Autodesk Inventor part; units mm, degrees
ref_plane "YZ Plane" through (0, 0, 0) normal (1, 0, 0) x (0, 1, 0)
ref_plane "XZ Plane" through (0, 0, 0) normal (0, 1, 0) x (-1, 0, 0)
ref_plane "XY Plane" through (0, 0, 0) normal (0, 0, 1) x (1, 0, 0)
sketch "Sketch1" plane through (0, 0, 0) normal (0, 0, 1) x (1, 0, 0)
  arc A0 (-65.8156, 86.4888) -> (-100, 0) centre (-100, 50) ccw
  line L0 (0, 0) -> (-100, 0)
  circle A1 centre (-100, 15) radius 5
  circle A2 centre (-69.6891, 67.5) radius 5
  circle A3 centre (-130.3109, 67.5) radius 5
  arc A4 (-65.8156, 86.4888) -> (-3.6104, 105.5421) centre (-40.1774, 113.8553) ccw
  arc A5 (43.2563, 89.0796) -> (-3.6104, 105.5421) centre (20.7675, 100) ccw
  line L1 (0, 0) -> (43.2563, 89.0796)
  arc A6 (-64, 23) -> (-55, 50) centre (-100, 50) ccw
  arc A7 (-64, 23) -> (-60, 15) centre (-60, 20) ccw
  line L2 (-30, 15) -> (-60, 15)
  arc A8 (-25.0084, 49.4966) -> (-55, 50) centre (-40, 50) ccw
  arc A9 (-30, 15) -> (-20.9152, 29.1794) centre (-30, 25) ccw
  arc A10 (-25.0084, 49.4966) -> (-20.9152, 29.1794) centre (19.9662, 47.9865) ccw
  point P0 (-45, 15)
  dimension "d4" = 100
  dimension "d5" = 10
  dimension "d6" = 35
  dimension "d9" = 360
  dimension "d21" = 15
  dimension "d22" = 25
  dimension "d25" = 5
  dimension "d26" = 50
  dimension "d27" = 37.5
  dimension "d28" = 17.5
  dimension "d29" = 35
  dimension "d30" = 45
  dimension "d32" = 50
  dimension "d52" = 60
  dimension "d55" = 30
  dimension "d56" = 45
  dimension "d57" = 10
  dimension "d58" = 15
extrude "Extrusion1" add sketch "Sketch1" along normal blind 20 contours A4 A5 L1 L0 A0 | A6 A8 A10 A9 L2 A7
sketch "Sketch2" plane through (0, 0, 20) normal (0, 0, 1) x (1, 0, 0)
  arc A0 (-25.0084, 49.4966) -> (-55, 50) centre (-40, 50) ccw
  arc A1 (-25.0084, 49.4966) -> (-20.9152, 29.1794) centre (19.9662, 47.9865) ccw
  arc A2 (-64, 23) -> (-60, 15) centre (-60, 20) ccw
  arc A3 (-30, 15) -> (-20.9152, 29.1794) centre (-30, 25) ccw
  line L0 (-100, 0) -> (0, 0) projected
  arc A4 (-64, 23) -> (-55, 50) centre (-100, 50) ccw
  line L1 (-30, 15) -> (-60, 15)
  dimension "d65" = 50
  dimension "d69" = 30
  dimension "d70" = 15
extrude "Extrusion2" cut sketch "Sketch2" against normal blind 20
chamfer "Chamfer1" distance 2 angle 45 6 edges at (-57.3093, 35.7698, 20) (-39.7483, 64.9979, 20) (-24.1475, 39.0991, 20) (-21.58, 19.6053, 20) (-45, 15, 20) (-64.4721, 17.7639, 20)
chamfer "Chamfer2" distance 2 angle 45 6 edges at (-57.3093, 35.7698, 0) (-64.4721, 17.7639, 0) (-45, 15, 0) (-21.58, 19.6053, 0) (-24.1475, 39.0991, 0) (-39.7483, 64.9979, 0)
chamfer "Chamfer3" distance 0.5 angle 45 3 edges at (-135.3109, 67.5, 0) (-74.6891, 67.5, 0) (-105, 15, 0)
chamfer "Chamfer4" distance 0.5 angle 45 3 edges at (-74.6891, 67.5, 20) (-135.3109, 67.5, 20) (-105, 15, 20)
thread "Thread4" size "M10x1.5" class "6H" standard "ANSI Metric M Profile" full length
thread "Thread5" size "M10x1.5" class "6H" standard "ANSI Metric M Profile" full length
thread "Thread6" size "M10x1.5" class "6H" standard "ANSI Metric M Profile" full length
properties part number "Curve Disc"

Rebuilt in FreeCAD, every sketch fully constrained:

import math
import FreeCAD as App
import Part
import Sketcher
from FreeCAD import Vector
Q = App.Units.Quantity


def edges_at(feature, points):
    """Names of the edges that pass closest to the given points."""
    edges = feature.Shape.Edges
    near = lambda p: min(range(len(edges)), key=lambda i: edges[i].distToShape(Part.Vertex(*p))[0])
    return sorted({f"Edge{near(p) + 1}" for p in points})

doc = App.newDocument("Part")
params = doc.addObject("Spreadsheet::Sheet", "Params")
for row, (alias, value) in enumerate([
    ("sketch1_diameter", "10 mm"),
    ("sketch1_radius", "50 mm"),
    ("sketch1_radius2", "25 mm"),
    ("sketch1_radius3", "37.5 mm"),
    ("sketch1_width", "100 mm"),
    ("pad1_length", "20 mm"),
    ("sketch2_radius", "15 mm"),
    ("sketch2_width", "30 mm"),
    ("sketch2_radius2", "45 mm"),
    ("sketch2_radius3", "5 mm"),
    ("sketch2_radius4", "10 mm"),
    ("pocket1_length", "20 mm"),
    ("chamfer_size", "2 mm"),
    ("chamfer2_size", "2 mm"),
    ("chamfer3_size", "0.5 mm"),
    ("chamfer4_size", "0.5 mm"),
], start=1):
    params.set(f"A{row}", alias)
    params.set(f"B{row}", "=" + value)
    params.setAlias(f"B{row}", alias)

body = doc.addObject("PartDesign::Body", "Body")

sketch1 = body.newObject("Sketcher::SketchObject", "Sketch")
sketch1.AttachmentSupport = (doc.getObject("XY_Plane"), [""])
sketch1.MapMode = "FlatFace"
sketch1.addGeometry([
    Part.ArcOfCircle(Part.Circle(Vector(-40, 114, 0), Vector(0, 0, 1), 37), math.radians(-133), math.radians(-13)),
    Part.ArcOfCircle(Part.Circle(Vector(-100, 50, 0), Vector(0, 0, 1), 50), math.radians(47), math.radians(270)),
    Part.LineSegment(Vector(-100, 0, 0), Vector(0, 0, 0)),
    Part.LineSegment(Vector(0, 0, 0), Vector(43, 89, 0)),
    Part.ArcOfCircle(Part.Circle(Vector(21, 100, 0), Vector(0, 0, 1), 25), math.radians(-26), math.radians(167)),
    Part.Circle(Vector(-100, 15, 0), Vector(0, 0, 1), 5),
    Part.Circle(Vector(-130, 68, 0), Vector(0, 0, 1), 5),
    Part.Circle(Vector(-70, 68, 0), Vector(0, 0, 1), 5),
], False)
sketch1.addConstraint([
    Sketcher.Constraint("Tangent", 0, 1, 1, 1),
    Sketcher.Constraint("Tangent", 1, 2, 2, 1),
    Sketcher.Constraint("Coincident", 2, 2, 3, 1),
    Sketcher.Constraint("Tangent", 3, 2, 4, 1),
    Sketcher.Constraint("Tangent", 4, 2, 0, 2),
    Sketcher.Constraint("Horizontal", 2),
    Sketcher.Constraint("Coincident", 2, 2, -1, 1),
    Sketcher.Constraint("Equal", 5, 6),
    Sketcher.Constraint("Equal", 6, 7),
    Sketcher.Constraint("Horizontal", 6, 3, 7, 3),
    Sketcher.Constraint("Vertical", 1, 3, 5, 3),
    Sketcher.Constraint("Diameter", 5, 10.0),
    Sketcher.Constraint("Radius", 1, 50.0),
    Sketcher.Constraint("Radius", 4, 25.0),
    Sketcher.Constraint("Radius", 0, 37.5),
    Sketcher.Constraint("DistanceX", 2, 1, 2, 2, 100.0),
    Sketcher.Constraint("DistanceY", -1, 1, 4, 3, 100.0),
    Sketcher.Constraint("DistanceY", -1, 1, 5, 3, 15.0),
    Sketcher.Constraint("DistanceY", 1, 3, 6, 3, 17.5),
    Sketcher.Constraint("Angle", 3, Q("64.0992 deg")),
    Sketcher.Constraint("DistanceX", 6, 3, -1, 1, 130.311),
    Sketcher.Constraint("DistanceX", 7, 3, -1, 1, 69.689),
])
sketch1.setExpression("Constraints[11]", "Params.sketch1_diameter")
sketch1.setExpression("Constraints[12]", "Params.sketch1_radius")
sketch1.setExpression("Constraints[13]", "Params.sketch1_radius2")
sketch1.setExpression("Constraints[14]", "Params.sketch1_radius3")
sketch1.setExpression("Constraints[15]", "Params.sketch1_width")
pad1 = body.newObject("PartDesign::Pad", "Pad")
pad1.Profile = sketch1
pad1.setExpression("Length", "Params.pad1_length")

sketch2 = body.newObject("Sketcher::SketchObject", "Sketch001")
sketch2.AttachmentSupport = (doc.getObject("XY_Plane"), [""])
sketch2.MapMode = "FlatFace"
sketch2.AttachmentOffset = App.Placement(Vector(0, 0, 20), App.Rotation())
sketch2.addGeometry([
    Part.ArcOfCircle(Part.Circle(Vector(20, 48, 0), Vector(0, 0, 1), 45), math.radians(178), math.radians(205)),
    Part.ArcOfCircle(Part.Circle(Vector(-40, 50, 0), Vector(0, 0, 1), 15), math.radians(-2), math.radians(180)),
    Part.ArcOfCircle(Part.Circle(Vector(-100, 50, 0), Vector(0, 0, 1), 45), math.radians(-37), math.radians(0)),
    Part.ArcOfCircle(Part.Circle(Vector(-60, 20, 0), Vector(0, 0, 1), 5), math.radians(143), math.radians(270)),
    Part.LineSegment(Vector(-60, 15, 0), Vector(-30, 15, 0)),
    Part.ArcOfCircle(Part.Circle(Vector(-30, 25, 0), Vector(0, 0, 1), 10), math.radians(-90), math.radians(25)),
], False)
sketch2.addConstraint([
    Sketcher.Constraint("Tangent", 0, 1, 1, 1),
    Sketcher.Constraint("Tangent", 1, 2, 2, 2),
    Sketcher.Constraint("Tangent", 2, 1, 3, 1),
    Sketcher.Constraint("Tangent", 3, 2, 4, 1),
    Sketcher.Constraint("Tangent", 4, 2, 5, 1),
    Sketcher.Constraint("Tangent", 5, 2, 0, 2),
    Sketcher.Constraint("Horizontal", 4),
    Sketcher.Constraint("Equal", 0, 2),
    Sketcher.Constraint("Horizontal", 1, 3, 2, 3),
    Sketcher.Constraint("Radius", 1, 15.0),
    Sketcher.Constraint("DistanceX", 4, 1, 4, 2, 30.0),
    Sketcher.Constraint("DistanceY", -1, 1, 1, 3, 50.0),
    Sketcher.Constraint("DistanceX", 5, 3, -1, 1, 30.0),
    Sketcher.Constraint("DistanceY", -1, 1, 3, 2, 15.0),
    Sketcher.Constraint("Radius", 0, 45.0),
    Sketcher.Constraint("Radius", 3, 5.0),
    Sketcher.Constraint("Radius", 5, 10.0),
])
sketch2.setExpression("Constraints[9]", "Params.sketch2_radius")
sketch2.setExpression("Constraints[10]", "Params.sketch2_width")
sketch2.setExpression("Constraints[14]", "Params.sketch2_radius2")
sketch2.setExpression("Constraints[15]", "Params.sketch2_radius3")
sketch2.setExpression("Constraints[16]", "Params.sketch2_radius4")
pocket1 = body.newObject("PartDesign::Pocket", "Pocket")
pocket1.Profile = sketch2
pocket1.setExpression("Length", "Params.pocket1_length")
doc.recompute()

chamfer = body.newObject("PartDesign::Chamfer", "Chamfer")
chamfer.Base = (pocket1, edges_at(pocket1, [
    (-57.309, 35.77, 20),
    (-39.748, 64.998, 20),
    (-24.148, 39.099, 20),
    (-21.58, 19.605, 20),
    (-45, 15, 20),
    (-64.472, 17.764, 20),
]))
chamfer.setExpression("Size", "Params.chamfer_size")
doc.recompute()

chamfer2 = body.newObject("PartDesign::Chamfer", "Chamfer001")
chamfer2.Base = (chamfer, edges_at(chamfer, [
    (-57.309, 35.77, 0),
    (-64.472, 17.764, 0),
    (-45, 15, 0),
    (-21.58, 19.605, 0),
    (-24.148, 39.099, 0),
    (-39.748, 64.998, 0),
]))
chamfer2.setExpression("Size", "Params.chamfer2_size")
doc.recompute()

chamfer3 = body.newObject("PartDesign::Chamfer", "Chamfer002")
chamfer3.Base = (chamfer2, edges_at(chamfer2, [(-135.311, 67.5, 0), (-74.689, 67.5, 0), (-105, 15, 0)]))
chamfer3.setExpression("Size", "Params.chamfer3_size")
doc.recompute()

chamfer4 = body.newObject("PartDesign::Chamfer", "Chamfer003")
chamfer4.Base = (chamfer3, edges_at(chamfer3, [(-74.689, 67.5, 20), (-135.311, 67.5, 20), (-105, 15, 20)]))
chamfer4.setExpression("Size", "Params.chamfer4_size")

doc.recompute()
